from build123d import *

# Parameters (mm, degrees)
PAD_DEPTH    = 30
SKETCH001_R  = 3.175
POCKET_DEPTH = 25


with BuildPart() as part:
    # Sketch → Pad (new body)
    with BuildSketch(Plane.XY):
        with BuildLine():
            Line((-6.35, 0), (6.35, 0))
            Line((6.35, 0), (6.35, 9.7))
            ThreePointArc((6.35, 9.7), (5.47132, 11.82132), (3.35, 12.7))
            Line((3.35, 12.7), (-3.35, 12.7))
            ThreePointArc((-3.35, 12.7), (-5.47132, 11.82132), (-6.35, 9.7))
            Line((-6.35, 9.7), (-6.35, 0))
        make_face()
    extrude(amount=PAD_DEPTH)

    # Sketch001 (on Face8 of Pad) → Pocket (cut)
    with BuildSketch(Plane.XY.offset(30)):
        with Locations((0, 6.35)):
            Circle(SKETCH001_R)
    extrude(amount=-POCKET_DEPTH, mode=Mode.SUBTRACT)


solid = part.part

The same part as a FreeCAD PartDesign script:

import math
import FreeCAD as App
import Part
import Sketcher

doc = App.newDocument("Part")
body = doc.addObject("PartDesign::Body", "Body")

# Sketch on XY plane
sketch1 = body.newObject("Sketcher::SketchObject", "Sketch")
sketch1.AttachmentSupport = (doc.getObject("XY_Plane"), [""])
sketch1.MapMode = "FlatFace"
sketch1.addGeometry([
    Part.LineSegment(App.Vector(-6.3, 0, 0), App.Vector(6.3, 0, 0)),  # 0
    Part.LineSegment(App.Vector(6.3, 0, 0), App.Vector(6.3, 9.7, 0)),  # 1
    Part.ArcOfCircle(Part.Circle(App.Vector(3.3, 9.7, 0), App.Vector(0, 0, 1), 3), math.radians(0), math.radians(90)),  # 2
    Part.LineSegment(App.Vector(3.4, 12.7, 0), App.Vector(-3.4, 12.7, 0)),  # 3
    Part.ArcOfCircle(Part.Circle(App.Vector(-3.3, 9.7, 0), App.Vector(0, 0, 1), 3), math.radians(90), math.radians(180)),  # 4
    Part.LineSegment(App.Vector(-6.3, 9.7, 0), App.Vector(-6.3, 0, 0)),  # 5
], False)
sketch1.addConstraint([
    Sketcher.Constraint("Coincident", 0, 2, 1, 1),
    Sketcher.Constraint("Tangent", 1, 2, 2, 1),
    Sketcher.Constraint("Tangent", 2, 2, 3, 1),
    Sketcher.Constraint("Tangent", 3, 2, 4, 1),
    Sketcher.Constraint("Tangent", 4, 2, 5, 1),
    Sketcher.Constraint("Coincident", 5, 2, 0, 1),
    Sketcher.Constraint("Horizontal", 0),
    Sketcher.Constraint("Vertical", 1),
    Sketcher.Constraint("Horizontal", 3),
    Sketcher.Constraint("Vertical", 5),
    Sketcher.Constraint("Equal", 2, 4),
    Sketcher.Constraint("Symmetric", 0, 2, 5, 2, -1, 1),
    Sketcher.Constraint("Radius", 2, 3.000001),
    Sketcher.Constraint("DistanceX", 0, 1, 0, 2, 12.7),
    Sketcher.Constraint("DistanceY", 1, 1, 1, 2, 9.7),
])
pad1 = body.newObject("PartDesign::Pad", "Pad")
pad1.Profile = sketch1
pad1.Length = 30

# Sketch on XY plane
sketch2 = body.newObject("Sketcher::SketchObject", "Sketch001")
sketch2.AttachmentSupport = (doc.getObject("XY_Plane"), [""])
sketch2.MapMode = "FlatFace"
sketch2.AttachmentOffset = App.Placement(App.Vector(0, 0, 30), App.Rotation())
sketch2.addGeometry(Part.Circle(App.Vector(0, 6.3, 0), App.Vector(0, 0, 1), 3.2), False)
sketch2.addConstraint([
    Sketcher.Constraint("PointOnObject", 0, 3, -2),
    Sketcher.Constraint("Diameter", 0, 6.35),
    Sketcher.Constraint("DistanceY", -1, 1, 0, 3, 6.35),
])
pocket1 = body.newObject("PartDesign::Pocket", "Pocket")
pocket1.Profile = sketch2
pocket1.Length = 25

doc.recompute()
